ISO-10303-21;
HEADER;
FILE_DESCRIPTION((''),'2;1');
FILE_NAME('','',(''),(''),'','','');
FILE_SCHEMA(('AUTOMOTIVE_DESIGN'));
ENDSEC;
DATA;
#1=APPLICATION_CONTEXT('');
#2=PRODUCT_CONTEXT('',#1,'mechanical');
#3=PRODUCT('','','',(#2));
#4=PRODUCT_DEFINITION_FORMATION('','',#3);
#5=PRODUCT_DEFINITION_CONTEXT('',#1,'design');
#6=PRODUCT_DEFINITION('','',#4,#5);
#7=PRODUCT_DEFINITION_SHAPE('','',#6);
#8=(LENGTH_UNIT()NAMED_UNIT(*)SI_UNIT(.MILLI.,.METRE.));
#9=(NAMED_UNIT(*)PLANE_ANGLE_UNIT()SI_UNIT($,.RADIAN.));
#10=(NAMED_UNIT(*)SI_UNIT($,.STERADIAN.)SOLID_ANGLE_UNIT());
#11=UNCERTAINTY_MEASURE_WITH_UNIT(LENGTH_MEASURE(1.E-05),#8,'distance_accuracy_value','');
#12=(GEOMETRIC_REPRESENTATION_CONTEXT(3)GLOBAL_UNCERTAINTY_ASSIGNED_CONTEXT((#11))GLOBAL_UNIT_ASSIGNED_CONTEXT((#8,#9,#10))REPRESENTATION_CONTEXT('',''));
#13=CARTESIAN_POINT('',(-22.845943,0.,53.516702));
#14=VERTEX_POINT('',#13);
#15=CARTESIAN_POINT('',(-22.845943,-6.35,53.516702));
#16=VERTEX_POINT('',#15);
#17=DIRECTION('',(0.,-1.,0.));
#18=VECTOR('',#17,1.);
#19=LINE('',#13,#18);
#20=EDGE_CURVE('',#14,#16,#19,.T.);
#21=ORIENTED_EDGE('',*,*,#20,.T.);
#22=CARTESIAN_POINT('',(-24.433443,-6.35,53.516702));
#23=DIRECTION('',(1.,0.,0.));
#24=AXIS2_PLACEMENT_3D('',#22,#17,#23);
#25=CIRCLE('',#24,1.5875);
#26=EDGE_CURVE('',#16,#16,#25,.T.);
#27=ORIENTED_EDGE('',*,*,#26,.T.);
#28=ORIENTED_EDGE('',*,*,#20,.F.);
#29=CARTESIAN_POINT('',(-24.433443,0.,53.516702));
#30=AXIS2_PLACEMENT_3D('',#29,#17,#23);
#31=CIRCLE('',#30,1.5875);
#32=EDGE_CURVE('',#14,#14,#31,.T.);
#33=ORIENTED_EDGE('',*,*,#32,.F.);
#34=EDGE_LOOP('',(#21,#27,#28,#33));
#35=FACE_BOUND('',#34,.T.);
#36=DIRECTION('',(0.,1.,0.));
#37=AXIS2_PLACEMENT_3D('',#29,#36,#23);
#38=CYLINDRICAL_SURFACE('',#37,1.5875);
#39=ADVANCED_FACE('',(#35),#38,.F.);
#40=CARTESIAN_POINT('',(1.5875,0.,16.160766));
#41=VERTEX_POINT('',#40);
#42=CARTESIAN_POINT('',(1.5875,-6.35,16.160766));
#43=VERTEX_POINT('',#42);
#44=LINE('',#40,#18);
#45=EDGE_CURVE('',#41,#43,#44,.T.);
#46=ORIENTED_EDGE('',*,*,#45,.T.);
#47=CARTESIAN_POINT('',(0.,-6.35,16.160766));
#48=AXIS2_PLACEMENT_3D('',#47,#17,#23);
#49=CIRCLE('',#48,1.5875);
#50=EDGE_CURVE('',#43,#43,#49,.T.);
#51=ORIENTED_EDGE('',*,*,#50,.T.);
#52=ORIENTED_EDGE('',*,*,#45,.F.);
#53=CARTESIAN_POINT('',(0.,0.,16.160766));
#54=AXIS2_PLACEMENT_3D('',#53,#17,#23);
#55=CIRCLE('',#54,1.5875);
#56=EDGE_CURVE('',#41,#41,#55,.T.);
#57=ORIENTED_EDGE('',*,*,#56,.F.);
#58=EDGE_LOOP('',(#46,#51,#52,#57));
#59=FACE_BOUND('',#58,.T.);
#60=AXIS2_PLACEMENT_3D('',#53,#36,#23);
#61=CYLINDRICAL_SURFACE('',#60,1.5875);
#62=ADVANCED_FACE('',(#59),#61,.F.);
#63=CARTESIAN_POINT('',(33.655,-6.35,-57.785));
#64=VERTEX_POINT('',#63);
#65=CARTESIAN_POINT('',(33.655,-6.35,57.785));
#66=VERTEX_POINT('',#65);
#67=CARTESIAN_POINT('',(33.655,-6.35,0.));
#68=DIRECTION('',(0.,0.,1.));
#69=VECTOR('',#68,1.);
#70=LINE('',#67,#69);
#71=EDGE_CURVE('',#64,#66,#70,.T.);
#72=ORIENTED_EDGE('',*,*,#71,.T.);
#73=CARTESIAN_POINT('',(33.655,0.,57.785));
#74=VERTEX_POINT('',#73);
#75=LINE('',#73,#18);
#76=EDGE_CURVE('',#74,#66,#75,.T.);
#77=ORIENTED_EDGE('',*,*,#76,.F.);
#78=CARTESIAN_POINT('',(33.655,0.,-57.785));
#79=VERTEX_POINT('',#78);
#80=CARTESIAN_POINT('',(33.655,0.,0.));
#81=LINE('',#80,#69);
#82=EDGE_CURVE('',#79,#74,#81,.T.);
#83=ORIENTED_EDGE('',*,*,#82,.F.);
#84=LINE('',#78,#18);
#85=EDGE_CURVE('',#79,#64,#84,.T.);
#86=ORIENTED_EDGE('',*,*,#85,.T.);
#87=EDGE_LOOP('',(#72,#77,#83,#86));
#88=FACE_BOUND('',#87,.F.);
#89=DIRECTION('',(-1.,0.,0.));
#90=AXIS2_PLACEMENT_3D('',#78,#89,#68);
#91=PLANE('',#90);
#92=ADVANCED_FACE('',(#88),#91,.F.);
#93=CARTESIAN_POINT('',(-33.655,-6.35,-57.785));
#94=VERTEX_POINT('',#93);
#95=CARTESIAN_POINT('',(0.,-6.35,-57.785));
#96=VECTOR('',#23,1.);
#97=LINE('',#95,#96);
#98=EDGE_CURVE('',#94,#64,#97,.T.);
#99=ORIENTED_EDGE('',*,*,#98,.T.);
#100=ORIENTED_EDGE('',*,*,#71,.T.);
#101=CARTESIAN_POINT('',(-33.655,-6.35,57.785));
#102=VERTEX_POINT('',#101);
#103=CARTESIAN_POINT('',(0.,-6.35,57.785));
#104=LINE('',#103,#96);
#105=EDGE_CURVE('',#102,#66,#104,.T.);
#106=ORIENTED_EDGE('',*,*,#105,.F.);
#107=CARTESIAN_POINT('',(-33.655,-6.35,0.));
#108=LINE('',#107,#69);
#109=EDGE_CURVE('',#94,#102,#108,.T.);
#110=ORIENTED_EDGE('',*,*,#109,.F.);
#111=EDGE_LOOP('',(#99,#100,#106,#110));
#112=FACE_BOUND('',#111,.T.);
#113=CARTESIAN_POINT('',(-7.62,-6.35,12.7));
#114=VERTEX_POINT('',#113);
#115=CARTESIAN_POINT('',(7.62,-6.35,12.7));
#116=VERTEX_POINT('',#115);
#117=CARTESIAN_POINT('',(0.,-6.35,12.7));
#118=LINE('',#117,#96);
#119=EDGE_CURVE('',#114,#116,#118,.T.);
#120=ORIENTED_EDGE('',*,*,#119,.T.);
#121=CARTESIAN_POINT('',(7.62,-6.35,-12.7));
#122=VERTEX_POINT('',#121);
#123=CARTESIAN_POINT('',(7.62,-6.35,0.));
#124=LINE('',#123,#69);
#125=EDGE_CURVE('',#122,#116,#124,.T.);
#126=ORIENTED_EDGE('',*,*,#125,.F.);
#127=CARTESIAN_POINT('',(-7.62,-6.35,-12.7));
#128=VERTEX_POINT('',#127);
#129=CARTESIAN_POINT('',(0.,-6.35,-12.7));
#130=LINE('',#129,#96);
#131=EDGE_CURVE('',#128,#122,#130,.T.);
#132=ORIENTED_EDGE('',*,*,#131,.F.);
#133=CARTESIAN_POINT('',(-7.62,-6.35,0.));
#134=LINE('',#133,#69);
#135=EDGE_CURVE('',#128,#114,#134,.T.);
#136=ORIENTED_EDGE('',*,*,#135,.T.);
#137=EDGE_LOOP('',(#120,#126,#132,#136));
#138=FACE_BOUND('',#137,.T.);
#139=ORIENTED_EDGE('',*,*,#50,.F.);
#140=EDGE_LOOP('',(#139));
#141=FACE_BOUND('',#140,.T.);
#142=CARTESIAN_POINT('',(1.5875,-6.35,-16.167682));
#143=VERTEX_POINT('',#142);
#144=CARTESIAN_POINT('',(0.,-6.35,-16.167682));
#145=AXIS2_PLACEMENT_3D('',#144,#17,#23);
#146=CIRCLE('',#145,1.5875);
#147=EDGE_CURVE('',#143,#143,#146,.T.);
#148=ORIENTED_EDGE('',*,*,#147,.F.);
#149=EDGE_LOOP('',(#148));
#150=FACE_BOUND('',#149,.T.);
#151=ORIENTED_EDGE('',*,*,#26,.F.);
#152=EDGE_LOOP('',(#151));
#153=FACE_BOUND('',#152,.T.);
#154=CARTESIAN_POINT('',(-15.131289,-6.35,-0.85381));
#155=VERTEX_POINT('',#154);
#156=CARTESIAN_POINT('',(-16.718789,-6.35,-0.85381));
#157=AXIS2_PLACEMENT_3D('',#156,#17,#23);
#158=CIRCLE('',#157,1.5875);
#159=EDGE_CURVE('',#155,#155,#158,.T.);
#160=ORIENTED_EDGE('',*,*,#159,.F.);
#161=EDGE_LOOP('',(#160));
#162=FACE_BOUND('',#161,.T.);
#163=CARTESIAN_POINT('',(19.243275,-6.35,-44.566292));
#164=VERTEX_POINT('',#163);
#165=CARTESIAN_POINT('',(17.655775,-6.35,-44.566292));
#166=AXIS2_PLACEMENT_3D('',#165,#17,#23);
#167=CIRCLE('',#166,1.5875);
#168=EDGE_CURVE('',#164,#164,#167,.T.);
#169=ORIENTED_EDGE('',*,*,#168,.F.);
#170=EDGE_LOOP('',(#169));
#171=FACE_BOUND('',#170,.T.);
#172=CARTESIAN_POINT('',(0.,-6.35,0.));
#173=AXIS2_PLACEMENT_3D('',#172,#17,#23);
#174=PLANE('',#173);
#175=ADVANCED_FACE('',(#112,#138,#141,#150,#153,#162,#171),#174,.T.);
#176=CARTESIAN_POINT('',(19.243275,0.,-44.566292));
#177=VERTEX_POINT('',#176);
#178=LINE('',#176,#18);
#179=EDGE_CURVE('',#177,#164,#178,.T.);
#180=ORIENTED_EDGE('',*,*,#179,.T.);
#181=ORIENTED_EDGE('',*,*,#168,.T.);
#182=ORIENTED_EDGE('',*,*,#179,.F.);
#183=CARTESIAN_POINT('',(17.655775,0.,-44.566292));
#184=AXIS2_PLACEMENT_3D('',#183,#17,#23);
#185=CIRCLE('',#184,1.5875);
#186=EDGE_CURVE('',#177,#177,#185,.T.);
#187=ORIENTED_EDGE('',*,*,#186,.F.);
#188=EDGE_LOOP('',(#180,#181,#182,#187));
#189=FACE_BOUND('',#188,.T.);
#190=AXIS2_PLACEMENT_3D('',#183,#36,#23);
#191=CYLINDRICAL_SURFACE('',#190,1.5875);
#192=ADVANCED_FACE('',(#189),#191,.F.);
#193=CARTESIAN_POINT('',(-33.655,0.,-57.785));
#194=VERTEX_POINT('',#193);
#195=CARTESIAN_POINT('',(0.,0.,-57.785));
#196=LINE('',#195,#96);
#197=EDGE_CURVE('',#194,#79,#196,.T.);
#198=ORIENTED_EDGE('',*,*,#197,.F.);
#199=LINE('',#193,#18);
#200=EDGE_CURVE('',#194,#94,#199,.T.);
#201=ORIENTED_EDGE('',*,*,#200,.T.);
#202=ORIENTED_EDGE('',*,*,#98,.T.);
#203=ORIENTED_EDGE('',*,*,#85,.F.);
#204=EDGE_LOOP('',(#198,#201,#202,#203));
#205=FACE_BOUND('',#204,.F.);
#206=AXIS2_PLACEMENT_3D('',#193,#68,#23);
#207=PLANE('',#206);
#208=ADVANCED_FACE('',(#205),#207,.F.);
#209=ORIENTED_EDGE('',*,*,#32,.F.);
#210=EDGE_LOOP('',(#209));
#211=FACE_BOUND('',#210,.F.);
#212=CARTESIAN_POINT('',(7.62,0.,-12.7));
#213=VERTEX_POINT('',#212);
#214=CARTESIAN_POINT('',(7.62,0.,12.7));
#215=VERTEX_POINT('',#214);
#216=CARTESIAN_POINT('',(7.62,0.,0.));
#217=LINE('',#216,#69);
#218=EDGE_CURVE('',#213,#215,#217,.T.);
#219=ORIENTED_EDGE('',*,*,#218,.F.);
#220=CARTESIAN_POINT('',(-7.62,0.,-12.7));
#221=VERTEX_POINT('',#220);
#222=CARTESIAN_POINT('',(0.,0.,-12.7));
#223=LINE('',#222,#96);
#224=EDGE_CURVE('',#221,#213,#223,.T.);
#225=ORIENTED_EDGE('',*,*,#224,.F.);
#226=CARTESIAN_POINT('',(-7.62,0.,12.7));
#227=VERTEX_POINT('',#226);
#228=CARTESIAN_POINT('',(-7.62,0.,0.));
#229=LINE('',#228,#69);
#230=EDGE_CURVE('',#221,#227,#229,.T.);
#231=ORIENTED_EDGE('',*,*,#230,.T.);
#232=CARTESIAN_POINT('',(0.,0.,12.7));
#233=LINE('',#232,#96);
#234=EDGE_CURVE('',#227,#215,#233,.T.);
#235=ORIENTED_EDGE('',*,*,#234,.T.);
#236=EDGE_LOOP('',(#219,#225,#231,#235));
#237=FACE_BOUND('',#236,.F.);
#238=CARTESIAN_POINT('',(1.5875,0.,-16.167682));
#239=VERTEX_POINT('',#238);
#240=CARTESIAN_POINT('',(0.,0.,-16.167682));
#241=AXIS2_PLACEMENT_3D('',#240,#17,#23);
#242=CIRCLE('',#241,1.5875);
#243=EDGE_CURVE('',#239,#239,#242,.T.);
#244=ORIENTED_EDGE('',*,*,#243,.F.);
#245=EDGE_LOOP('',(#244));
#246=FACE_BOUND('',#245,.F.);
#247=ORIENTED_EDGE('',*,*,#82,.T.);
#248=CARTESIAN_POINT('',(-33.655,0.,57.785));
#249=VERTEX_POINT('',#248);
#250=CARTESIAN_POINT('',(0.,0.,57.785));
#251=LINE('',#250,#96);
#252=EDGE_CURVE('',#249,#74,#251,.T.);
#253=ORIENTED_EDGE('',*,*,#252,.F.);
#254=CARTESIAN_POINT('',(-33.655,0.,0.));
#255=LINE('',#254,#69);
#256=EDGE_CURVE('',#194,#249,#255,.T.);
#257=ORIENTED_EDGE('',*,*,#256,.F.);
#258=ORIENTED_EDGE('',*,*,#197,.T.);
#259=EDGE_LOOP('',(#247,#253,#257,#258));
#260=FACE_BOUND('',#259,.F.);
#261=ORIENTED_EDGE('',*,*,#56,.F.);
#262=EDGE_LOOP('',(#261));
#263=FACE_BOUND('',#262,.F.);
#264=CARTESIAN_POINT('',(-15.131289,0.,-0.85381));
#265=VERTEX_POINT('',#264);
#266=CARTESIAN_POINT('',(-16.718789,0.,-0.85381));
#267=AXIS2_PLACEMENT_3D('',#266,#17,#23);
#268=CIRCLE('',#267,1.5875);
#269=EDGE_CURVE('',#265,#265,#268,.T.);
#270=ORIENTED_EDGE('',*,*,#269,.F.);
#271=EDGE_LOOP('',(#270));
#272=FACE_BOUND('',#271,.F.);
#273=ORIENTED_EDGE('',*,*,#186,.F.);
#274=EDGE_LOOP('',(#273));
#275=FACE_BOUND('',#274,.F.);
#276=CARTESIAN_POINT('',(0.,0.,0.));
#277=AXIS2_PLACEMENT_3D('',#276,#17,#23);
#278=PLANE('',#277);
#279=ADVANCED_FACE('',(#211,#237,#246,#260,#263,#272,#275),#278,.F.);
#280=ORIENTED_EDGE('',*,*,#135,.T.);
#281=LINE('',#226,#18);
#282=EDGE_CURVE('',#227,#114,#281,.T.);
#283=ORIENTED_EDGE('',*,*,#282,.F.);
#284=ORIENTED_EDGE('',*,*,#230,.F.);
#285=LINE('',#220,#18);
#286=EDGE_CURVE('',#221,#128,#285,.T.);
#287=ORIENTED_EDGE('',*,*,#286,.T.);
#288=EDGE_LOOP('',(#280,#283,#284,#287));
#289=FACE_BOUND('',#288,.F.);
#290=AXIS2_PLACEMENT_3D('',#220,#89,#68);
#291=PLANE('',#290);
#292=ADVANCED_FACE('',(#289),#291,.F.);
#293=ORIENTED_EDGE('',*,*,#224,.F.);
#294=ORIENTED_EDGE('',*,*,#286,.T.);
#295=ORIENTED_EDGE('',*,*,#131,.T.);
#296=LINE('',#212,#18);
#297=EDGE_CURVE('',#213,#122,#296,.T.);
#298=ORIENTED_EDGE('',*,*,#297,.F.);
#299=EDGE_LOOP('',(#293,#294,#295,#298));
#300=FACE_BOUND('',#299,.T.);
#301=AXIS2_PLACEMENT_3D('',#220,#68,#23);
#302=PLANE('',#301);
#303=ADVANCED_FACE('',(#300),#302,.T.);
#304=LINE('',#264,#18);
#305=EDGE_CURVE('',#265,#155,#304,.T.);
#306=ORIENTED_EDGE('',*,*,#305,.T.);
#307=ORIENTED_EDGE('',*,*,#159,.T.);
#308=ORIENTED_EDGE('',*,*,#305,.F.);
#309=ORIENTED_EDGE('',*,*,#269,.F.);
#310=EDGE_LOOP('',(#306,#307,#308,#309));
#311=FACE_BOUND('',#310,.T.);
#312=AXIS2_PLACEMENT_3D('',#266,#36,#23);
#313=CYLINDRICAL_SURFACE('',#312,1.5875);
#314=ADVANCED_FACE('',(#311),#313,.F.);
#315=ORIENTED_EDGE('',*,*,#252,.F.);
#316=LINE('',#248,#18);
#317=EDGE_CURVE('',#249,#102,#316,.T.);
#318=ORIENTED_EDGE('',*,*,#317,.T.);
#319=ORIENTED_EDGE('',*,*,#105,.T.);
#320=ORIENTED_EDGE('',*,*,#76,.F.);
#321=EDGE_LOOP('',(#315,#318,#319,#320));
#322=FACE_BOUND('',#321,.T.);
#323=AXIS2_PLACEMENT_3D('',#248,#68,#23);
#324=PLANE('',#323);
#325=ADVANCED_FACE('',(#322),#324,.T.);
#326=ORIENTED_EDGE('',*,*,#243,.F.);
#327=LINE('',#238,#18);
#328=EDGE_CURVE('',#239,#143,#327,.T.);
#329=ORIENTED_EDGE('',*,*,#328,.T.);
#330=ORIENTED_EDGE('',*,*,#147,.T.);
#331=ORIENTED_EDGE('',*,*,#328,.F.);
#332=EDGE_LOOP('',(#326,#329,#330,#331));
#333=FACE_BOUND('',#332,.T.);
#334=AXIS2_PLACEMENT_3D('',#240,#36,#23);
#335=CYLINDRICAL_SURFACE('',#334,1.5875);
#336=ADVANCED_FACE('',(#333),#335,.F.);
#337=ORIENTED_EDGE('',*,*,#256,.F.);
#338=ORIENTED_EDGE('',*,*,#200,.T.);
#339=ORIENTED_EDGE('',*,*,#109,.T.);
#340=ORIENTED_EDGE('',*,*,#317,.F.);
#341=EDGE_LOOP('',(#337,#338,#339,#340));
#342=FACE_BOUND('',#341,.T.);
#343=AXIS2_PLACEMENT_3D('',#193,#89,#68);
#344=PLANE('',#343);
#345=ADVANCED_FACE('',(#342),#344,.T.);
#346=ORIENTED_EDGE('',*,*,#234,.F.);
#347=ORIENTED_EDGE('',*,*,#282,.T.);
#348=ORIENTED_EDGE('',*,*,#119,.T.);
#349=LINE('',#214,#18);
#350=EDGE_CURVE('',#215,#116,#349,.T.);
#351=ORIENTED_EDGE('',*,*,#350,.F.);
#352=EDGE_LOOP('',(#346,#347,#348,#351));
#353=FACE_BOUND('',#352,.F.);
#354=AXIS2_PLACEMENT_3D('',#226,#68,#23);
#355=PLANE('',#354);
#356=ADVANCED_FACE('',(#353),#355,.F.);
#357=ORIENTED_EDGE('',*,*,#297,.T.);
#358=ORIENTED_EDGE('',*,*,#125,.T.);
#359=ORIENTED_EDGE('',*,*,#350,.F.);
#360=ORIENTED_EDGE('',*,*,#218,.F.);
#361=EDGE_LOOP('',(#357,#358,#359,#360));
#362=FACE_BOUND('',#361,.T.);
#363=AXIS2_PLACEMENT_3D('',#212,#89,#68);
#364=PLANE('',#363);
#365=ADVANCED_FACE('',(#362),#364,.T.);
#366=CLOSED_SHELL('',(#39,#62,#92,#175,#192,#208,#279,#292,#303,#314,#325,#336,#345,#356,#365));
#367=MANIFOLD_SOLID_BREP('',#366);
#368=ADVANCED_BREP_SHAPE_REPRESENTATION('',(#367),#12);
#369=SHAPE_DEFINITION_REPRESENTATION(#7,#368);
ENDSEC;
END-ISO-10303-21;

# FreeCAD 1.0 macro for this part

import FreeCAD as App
import Part
import Sketcher
from FreeCAD import Vector
Q = App.Units.Quantity

doc = App.newDocument("Part")
body = doc.addObject("PartDesign::Body", "Body")

sketch1 = doc.addObject("Sketcher::SketchObject", "Sketch")
body.addObject(sketch1)
sketch1.AttachmentSupport = (doc.XZ_Plane, [""])
sketch1.MapMode = "FlatFace"
sketch1.addGeometry([
    Part.LineSegment(Vector(-33.7, 57.8, 0), Vector(-33.7, -57.8, 0)),
    Part.LineSegment(Vector(-33.7, -57.8, 0), Vector(33.7, -57.8, 0)),
    Part.LineSegment(Vector(33.7, -57.8, 0), Vector(33.7, 57.8, 0)),
    Part.LineSegment(Vector(33.7, 57.8, 0), Vector(-33.7, 57.8, 0)),
    Part.Circle(Vector(-16.7, -0.9, 0), Vector(0, 0, 1), 1.6),
    Part.Circle(Vector(17.7, -44.6, 0), Vector(0, 0, 1), 1.6),
    Part.Circle(Vector(0, -16.2, 0), Vector(0, 0, 1), 1.6),
    Part.LineSegment(Vector(7.6, -12.7, 0), Vector(-7.6, -12.7, 0)),
    Part.LineSegment(Vector(-7.6, -12.7, 0), Vector(-7.6, 12.7, 0)),
    Part.LineSegment(Vector(-7.6, 12.7, 0), Vector(7.6, 12.7, 0)),
    Part.LineSegment(Vector(7.6, 12.7, 0), Vector(7.6, -12.7, 0)),
    Part.Circle(Vector(-24.4, 53.5, 0), Vector(0, 0, 1), 1.6),
    Part.Circle(Vector(0, 16.2, 0), Vector(0, 0, 1), 1.6),
], False)
sketch1.addConstraint([
    Sketcher.Constraint("Coincident", 0, 2, 1, 1),
    Sketcher.Constraint("Coincident", 1, 2, 2, 1),
    Sketcher.Constraint("Coincident", 2, 2, 3, 1),
    Sketcher.Constraint("Coincident", 3, 2, 0, 1),
    Sketcher.Constraint("Coincident", 7, 2, 8, 1),
    Sketcher.Constraint("Coincident", 8, 2, 9, 1),
    Sketcher.Constraint("Coincident", 9, 2, 10, 1),
    Sketcher.Constraint("Coincident", 10, 2, 7, 1),
    Sketcher.Constraint("Vertical", 0),
    Sketcher.Constraint("Horizontal", 1),
    Sketcher.Constraint("Vertical", 2),
    Sketcher.Constraint("Horizontal", 3),
    Sketcher.Constraint("Horizontal", 7),
    Sketcher.Constraint("Vertical", 8),
    Sketcher.Constraint("Horizontal", 9),
    Sketcher.Constraint("Vertical", 10),
    Sketcher.Constraint("Equal", 4, 5),
    Sketcher.Constraint("Equal", 5, 6),
    Sketcher.Constraint("Equal", 6, 11),
    Sketcher.Constraint("Equal", 11, 12),
    Sketcher.Constraint("Symmetric", 0, 2, 2, 2, -1, 1),
    Sketcher.Constraint("Symmetric", 7, 2, 9, 2, -1, 1),
    Sketcher.Constraint("PointOnObject", 6, 3, -2),
    Sketcher.Constraint("PointOnObject", 12, 3, -2),
    Sketcher.Constraint("DistanceY", 8, 1, 8, 2, Q("1 in")),
    Sketcher.Constraint("Diameter", 4, Q("0.125 in")),
    Sketcher.Constraint("DistanceX", 7, 2, 7, 1, Q("0.6 in")),
    Sketcher.Constraint("DistanceX", 1, 1, 1, 2, Q("2.65 in")),
    Sketcher.Constraint("DistanceY", 0, 2, 0, 1, Q("4.55 in")),
    Sketcher.Constraint("DistanceX", 4, 3, -1, 1, 16.718789),
    Sketcher.Constraint("DistanceY", 4, 3, -1, 1, 0.85381),
    Sketcher.Constraint("DistanceY", 5, 3, -1, 1, 44.566292),
    Sketcher.Constraint("DistanceY", 6, 3, -1, 1, 16.167682),
    Sketcher.Constraint("DistanceX", 11, 3, 5, 3, 42.089218),
    Sketcher.Constraint("DistanceX", -1, 1, 5, 3, 17.655775),
    Sketcher.Constraint("DistanceY", -1, 1, 11, 3, 53.516702),
    Sketcher.Constraint("DistanceY", -1, 1, 12, 3, 16.160766),
])
pad1 = doc.addObject("PartDesign::Pad", "Pad")
body.addObject(pad1)
pad1.Profile = sketch1
pad1.Length = Q("0.25 in")

doc.recompute()
